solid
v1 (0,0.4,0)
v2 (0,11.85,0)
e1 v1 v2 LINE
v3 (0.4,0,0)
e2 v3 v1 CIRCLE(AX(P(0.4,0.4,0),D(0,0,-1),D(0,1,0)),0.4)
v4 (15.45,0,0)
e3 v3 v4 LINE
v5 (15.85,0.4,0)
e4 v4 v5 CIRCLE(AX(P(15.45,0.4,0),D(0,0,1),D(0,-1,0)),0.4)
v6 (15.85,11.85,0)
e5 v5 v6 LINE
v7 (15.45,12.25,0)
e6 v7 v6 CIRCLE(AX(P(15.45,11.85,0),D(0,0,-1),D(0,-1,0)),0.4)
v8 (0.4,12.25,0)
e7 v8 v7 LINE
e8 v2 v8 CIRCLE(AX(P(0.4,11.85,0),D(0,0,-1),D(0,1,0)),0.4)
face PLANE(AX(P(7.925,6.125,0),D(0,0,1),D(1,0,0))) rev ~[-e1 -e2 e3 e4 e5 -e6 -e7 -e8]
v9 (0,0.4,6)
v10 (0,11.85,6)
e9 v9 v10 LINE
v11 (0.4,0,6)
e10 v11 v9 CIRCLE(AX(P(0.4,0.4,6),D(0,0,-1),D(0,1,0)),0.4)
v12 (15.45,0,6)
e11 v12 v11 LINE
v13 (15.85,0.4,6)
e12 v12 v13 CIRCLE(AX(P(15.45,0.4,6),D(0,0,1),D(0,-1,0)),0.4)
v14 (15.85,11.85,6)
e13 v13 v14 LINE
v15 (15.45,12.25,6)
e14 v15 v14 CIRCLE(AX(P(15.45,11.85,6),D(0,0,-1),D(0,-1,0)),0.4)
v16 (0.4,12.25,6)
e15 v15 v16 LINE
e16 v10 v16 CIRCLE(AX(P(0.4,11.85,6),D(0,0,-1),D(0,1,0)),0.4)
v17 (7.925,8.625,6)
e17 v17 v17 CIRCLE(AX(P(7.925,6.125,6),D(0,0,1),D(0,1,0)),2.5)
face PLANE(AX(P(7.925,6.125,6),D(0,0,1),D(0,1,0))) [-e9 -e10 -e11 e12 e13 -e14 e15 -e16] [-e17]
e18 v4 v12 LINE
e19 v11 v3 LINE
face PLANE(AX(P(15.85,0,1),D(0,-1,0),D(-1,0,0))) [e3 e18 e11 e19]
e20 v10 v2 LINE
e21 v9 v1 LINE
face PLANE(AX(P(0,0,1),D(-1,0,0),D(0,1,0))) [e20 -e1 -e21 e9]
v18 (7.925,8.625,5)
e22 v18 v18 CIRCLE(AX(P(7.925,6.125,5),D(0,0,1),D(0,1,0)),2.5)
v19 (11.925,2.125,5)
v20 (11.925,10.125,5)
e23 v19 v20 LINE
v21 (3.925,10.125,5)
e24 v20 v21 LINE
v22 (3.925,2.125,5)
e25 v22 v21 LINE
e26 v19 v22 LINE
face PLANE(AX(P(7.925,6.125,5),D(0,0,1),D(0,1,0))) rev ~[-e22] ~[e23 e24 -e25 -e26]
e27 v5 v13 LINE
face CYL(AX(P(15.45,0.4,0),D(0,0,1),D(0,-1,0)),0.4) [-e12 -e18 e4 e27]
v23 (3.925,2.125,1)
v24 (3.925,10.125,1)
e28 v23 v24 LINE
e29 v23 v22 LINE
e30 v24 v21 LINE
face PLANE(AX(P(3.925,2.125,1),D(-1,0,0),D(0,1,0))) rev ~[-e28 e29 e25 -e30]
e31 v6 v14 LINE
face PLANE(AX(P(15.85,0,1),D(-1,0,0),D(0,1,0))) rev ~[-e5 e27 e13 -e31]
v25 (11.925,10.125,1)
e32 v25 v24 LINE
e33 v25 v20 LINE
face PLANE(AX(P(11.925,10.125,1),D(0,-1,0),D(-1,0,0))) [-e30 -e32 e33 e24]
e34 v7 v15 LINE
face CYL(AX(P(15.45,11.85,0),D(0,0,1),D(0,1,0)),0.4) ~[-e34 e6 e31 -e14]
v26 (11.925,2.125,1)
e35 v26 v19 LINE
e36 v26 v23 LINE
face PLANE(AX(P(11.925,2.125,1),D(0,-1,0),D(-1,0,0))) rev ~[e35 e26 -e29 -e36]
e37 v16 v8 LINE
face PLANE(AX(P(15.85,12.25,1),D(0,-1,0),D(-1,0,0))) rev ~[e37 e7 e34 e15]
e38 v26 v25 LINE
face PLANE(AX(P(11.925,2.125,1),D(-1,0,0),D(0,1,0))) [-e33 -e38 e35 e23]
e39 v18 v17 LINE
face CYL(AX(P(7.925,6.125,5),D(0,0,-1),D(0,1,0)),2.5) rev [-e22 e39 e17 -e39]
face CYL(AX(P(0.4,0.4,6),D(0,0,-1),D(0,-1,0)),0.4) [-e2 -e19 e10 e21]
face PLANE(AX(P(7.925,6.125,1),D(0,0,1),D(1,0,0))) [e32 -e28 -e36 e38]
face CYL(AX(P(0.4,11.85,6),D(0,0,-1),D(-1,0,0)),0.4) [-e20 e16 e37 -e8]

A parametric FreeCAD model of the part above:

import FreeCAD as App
import Part
import Sketcher

V = App.Vector


def edges_at(feature, points):
    """Names of the edges that pass closest to the given points."""
    edges = feature.Shape.Edges
    near = lambda p: min(range(len(edges)), key=lambda i: edges[i].distToShape(Part.Vertex(*p))[0])
    return sorted({f"Edge{near(p) + 1}" for p in points})


def add_polygon(sketch, points):
    """Adds a closed chain of lines whose ends are joined by coincident constraints."""
    first, n = sketch.GeometryCount, len(points)
    for a, b in zip(points, points[1:] + points[:1]):
        sketch.addGeometry(Part.LineSegment(App.Vector(*a, 0), App.Vector(*b, 0)), False)
    for i in range(n):
        sketch.addConstraint(Sketcher.Constraint("Coincident", first + i, 2, first + (i + 1) % n, 1))

doc = App.newDocument("Part")
body = doc.addObject("PartDesign::Body", "Body")

# Sketch on XY plane
sketch1 = body.newObject("Sketcher::SketchObject", "Sketch")
sketch1.AttachmentSupport = (doc.getObject("XY_Plane"), [""])
sketch1.MapMode = "FlatFace"
sketch1.AttachmentOffset = App.Placement(V(0, 0, 1), App.Rotation())
add_polygon(sketch1, [(0, 0), (16, 0), (16, 12), (0, 12)])  # lines 0-3
add_polygon(sketch1, [(12, 10), (12, 2), (4, 2), (4, 10)])  # lines 4-7
sketch1.addConstraint(Sketcher.Constraint("Horizontal", 0))
sketch1.addConstraint(Sketcher.Constraint("Vertical", 1))
sketch1.addConstraint(Sketcher.Constraint("Horizontal", 2))
sketch1.addConstraint(Sketcher.Constraint("Vertical", 3))
sketch1.addConstraint(Sketcher.Constraint("Vertical", 4))
sketch1.addConstraint(Sketcher.Constraint("Horizontal", 5))
sketch1.addConstraint(Sketcher.Constraint("Vertical", 6))
sketch1.addConstraint(Sketcher.Constraint("Horizontal", 7))
sketch1.addConstraint(Sketcher.Constraint("Coincident", 3, 2, -1, 1))
sketch1.addConstraint(Sketcher.Constraint("Equal", 7, 4))
sketch1.addConstraint(Sketcher.Constraint("DistanceX", 5, 2, 5, 1, 8.0))
sketch1.addConstraint(Sketcher.Constraint("DistanceX", 0, 1, 0, 2, 15.85))
sketch1.addConstraint(Sketcher.Constraint("DistanceY", 1, 1, 1, 2, 12.25))
sketch1.addConstraint(Sketcher.Constraint("DistanceX", -1, 1, 4, 2, 11.925))
sketch1.addConstraint(Sketcher.Constraint("DistanceY", -1, 1, 4, 2, 2.125))
pad1 = body.newObject("PartDesign::Pad", "Pad")
pad1.Profile = sketch1
pad1.Length = 4
body2 = doc.addObject("PartDesign::Body", "Body001")

# Sketch on XY plane
sketch2 = body2.newObject("Sketcher::SketchObject", "Sketch001")
sketch2.AttachmentSupport = (doc.getObject("XY_Plane001"), [""])
sketch2.MapMode = "FlatFace"
add_polygon(sketch2, [(0, 12), (0, 0), (16, 0), (16, 12)])  # lines 0-3
sketch2.addConstraint(Sketcher.Constraint("Vertical", 0))
sketch2.addConstraint(Sketcher.Constraint("Horizontal", 1))
sketch2.addConstraint(Sketcher.Constraint("Vertical", 2))
sketch2.addConstraint(Sketcher.Constraint("Horizontal", 3))
sketch2.addConstraint(Sketcher.Constraint("Coincident", 0, 2, -1, 1))
sketch2.addConstraint(Sketcher.Constraint("DistanceX", 1, 1, 1, 2, 15.85))
sketch2.addConstraint(Sketcher.Constraint("DistanceY", 0, 2, 0, 1, 12.25))
pad2 = body2.newObject("PartDesign::Pad", "Pad001")
pad2.Profile = sketch2
pad2.Length = 1
doc.recompute()

boolean = body2.newObject("PartDesign::Boolean", "Boolean")
boolean.Type = "Fuse"
boolean.addObjects([body])
body3 = doc.addObject("PartDesign::Body", "Body002")

# Sketch on XY plane
sketch3 = body3.newObject("Sketcher::SketchObject", "Sketch002")
sketch3.AttachmentSupport = (doc.getObject("XY_Plane002"), [""])
sketch3.MapMode = "FlatFace"
sketch3.AttachmentOffset = App.Placement(V(0, 0, 5), App.Rotation())
add_polygon(sketch3, [(0, 0), (15.8, 0), (15.8, 12.2), (0, 12.2)])  # lines 0-3
sketch3.addGeometry(Part.Circle(V(7.9, 6.1, 0), V(0, 0, 1), 2.5), False)  # 4
sketch3.addConstraint(Sketcher.Constraint("Horizontal", 0))
sketch3.addConstraint(Sketcher.Constraint("Vertical", 1))
sketch3.addConstraint(Sketcher.Constraint("Horizontal", 2))
sketch3.addConstraint(Sketcher.Constraint("Vertical", 3))
sketch3.addConstraint(Sketcher.Constraint("Coincident", 3, 2, -1, 1))
sketch3.addConstraint(Sketcher.Constraint("Diameter", 4, 5.0))
sketch3.addConstraint(Sketcher.Constraint("DistanceX", 0, 1, 0, 2, 15.85))
sketch3.addConstraint(Sketcher.Constraint("DistanceY", 1, 1, 1, 2, 12.25))
sketch3.addConstraint(Sketcher.Constraint("DistanceX", -1, 1, 4, 3, 7.925))
sketch3.addConstraint(Sketcher.Constraint("DistanceY", -1, 1, 4, 3, 6.125))
pad3 = body3.newObject("PartDesign::Pad", "Pad002")
pad3.Profile = sketch3
pad3.Length = 1
doc.recompute()

boolean2 = body3.newObject("PartDesign::Boolean", "Boolean001")
boolean2.Type = "Fuse"
boolean2.addObjects([body2])
doc.recompute()

fillet = body3.newObject("PartDesign::Fillet", "Fillet")
fillet.Base = (boolean2, edges_at(boolean2, [
    (15.85, 12.25, 3),
    (0, 12.25, 3),
    (15.85, 0, 3),
    (0, 0, 3),
    (15.85, 12.25, 3),
    (0, 12.25, 3),
    (15.85, 0, 3),
    (0, 0, 3),
    (15.85, 12.25, 3),
    (0, 12.25, 3),
    (15.85, 0, 3),
    (0, 0, 3),
]))
fillet.Radius = 0.4

doc.recompute()
